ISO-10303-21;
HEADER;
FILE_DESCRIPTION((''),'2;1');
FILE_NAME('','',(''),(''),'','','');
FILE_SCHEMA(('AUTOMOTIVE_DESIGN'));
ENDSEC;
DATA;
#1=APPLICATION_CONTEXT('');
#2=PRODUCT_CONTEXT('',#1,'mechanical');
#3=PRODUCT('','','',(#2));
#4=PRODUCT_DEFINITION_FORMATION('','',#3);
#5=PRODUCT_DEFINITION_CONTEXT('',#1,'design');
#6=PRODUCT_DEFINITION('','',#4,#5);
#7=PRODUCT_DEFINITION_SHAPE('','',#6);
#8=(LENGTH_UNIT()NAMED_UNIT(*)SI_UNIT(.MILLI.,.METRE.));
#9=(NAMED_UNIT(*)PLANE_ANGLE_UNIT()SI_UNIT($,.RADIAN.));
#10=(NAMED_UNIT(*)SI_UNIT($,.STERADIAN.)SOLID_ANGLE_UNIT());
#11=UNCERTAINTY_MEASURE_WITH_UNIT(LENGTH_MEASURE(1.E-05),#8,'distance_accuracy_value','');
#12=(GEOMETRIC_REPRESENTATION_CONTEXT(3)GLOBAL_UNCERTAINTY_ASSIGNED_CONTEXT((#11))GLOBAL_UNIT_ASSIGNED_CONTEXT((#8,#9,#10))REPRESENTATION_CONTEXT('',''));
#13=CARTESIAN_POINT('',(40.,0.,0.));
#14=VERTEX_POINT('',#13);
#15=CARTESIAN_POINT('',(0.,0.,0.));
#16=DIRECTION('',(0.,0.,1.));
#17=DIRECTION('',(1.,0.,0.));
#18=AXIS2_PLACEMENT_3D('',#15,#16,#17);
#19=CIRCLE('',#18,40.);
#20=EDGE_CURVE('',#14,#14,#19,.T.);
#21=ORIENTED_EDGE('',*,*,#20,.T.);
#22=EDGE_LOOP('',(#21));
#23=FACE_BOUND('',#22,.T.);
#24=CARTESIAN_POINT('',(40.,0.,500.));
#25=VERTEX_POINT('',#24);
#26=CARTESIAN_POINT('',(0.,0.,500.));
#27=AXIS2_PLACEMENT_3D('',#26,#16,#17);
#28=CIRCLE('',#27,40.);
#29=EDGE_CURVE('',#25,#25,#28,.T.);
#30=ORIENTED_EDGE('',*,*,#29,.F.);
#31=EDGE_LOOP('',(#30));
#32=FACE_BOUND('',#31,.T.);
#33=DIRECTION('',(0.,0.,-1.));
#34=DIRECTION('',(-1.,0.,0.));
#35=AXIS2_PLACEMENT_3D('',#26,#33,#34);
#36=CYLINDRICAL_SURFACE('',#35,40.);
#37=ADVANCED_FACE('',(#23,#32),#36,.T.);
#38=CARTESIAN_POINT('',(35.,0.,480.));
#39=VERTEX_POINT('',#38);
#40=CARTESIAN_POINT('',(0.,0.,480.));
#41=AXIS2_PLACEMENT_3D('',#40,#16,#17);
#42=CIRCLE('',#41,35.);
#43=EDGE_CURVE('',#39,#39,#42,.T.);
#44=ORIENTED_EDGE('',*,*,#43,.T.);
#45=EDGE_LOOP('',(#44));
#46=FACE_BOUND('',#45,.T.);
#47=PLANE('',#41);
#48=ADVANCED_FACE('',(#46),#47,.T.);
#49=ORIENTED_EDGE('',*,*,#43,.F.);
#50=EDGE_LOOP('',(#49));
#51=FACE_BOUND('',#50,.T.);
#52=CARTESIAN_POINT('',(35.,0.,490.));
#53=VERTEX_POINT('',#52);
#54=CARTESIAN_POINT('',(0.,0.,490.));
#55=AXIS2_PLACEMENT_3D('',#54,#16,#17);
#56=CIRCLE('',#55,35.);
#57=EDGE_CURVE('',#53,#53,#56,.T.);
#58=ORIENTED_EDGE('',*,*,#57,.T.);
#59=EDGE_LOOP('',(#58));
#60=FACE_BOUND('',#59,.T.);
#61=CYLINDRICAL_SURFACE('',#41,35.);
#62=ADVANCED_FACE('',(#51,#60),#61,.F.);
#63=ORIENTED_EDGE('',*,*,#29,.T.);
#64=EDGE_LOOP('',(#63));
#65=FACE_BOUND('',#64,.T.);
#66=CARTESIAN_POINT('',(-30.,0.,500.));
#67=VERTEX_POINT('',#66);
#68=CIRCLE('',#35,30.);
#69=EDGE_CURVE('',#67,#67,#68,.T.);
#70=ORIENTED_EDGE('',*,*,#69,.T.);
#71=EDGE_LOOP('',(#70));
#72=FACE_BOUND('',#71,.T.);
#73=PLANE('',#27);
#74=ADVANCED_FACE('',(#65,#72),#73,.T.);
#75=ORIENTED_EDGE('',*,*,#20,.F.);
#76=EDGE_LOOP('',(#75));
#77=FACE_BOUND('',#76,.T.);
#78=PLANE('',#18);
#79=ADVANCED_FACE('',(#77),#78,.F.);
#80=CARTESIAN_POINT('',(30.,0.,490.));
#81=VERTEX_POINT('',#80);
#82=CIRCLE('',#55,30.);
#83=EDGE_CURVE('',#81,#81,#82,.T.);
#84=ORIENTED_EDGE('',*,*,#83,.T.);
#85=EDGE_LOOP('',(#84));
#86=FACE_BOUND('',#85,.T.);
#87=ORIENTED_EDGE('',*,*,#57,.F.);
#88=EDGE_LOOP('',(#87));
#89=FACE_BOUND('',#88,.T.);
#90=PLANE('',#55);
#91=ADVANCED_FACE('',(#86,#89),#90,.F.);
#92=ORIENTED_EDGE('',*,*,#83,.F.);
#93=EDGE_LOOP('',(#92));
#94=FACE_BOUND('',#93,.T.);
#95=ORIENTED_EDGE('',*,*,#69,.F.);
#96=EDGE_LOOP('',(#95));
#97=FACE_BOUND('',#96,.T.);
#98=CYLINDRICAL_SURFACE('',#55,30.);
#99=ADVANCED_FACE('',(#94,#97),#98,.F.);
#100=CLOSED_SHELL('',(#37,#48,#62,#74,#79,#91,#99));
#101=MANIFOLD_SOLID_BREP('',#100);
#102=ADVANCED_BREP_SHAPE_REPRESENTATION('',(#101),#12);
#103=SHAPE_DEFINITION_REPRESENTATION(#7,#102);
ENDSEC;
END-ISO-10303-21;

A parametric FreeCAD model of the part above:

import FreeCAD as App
import Part
import Sketcher
from FreeCAD import Vector

doc = App.newDocument("Part")
body = doc.addObject("PartDesign::Body", "Body")

sketch1 = body.newObject("Sketcher::SketchObject", "Sketch")
sketch1.AttachmentSupport = (doc.getObject("XY_Plane"), [""])
sketch1.MapMode = "FlatFace"
sketch1.addGeometry(Part.Circle(Vector(0, 0, 0), Vector(0, 0, 1), 40), False)
sketch1.addConstraint(Sketcher.Constraint("Coincident", 0, 3, -1, 1))
sketch1.addConstraint(Sketcher.Constraint("Diameter", 0, 80.0))
pad1 = body.newObject("PartDesign::Pad", "Pad")
pad1.Profile = sketch1
pad1.Length = 500

sketch2 = body.newObject("Sketcher::SketchObject", "Sketch001")
sketch2.AttachmentSupport = (doc.getObject("XY_Plane"), [""])
sketch2.MapMode = "FlatFace"
sketch2.AttachmentOffset = App.Placement(Vector(0, 0, 500), App.Rotation())
sketch2.addGeometry(Part.Circle(Vector(0, 0, 0), Vector(0, 0, 1), 30), False)
sketch2.addConstraint(Sketcher.Constraint("Coincident", 0, 3, -1, 1))
sketch2.addConstraint(Sketcher.Constraint("Diameter", 0, 60.0))
pocket1 = body.newObject("PartDesign::Pocket", "Pocket")
pocket1.Profile = sketch2
pocket1.Length = 10

sketch3 = body.newObject("Sketcher::SketchObject", "Sketch002")
sketch3.AttachmentSupport = (doc.getObject("XY_Plane"), [""])
sketch3.MapMode = "FlatFace"
sketch3.AttachmentOffset = App.Placement(Vector(0, 0, 490), App.Rotation())
sketch3.addGeometry(Part.Circle(Vector(0, 0, 0), Vector(0, 0, 1), 35), False)
sketch3.addConstraint(Sketcher.Constraint("Coincident", 0, 3, -1, 1))
sketch3.addConstraint(Sketcher.Constraint("Diameter", 0, 70.0))
pocket2 = body.newObject("PartDesign::Pocket", "Pocket001")
pocket2.Profile = sketch3
pocket2.Length = 10

doc.recompute()
